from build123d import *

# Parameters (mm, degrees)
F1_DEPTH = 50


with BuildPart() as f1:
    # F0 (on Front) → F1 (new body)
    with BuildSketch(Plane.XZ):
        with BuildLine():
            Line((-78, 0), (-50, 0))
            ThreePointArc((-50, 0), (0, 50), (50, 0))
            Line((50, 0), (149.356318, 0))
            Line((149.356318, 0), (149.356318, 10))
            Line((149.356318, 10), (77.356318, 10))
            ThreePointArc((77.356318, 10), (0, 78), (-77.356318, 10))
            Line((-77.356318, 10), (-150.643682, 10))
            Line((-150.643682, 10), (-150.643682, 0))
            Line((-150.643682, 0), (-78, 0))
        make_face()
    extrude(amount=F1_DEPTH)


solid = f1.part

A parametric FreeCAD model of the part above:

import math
import FreeCAD as App
import Part
import Sketcher

doc = App.newDocument("Part")
body = doc.addObject("PartDesign::Body", "Body")

# Sketch on XZ plane
sketch1 = body.newObject("Sketcher::SketchObject", "Sketch")
sketch1.AttachmentSupport = (doc.getObject("XZ_Plane"), [""])
sketch1.MapMode = "FlatFace"
sketch1.addGeometry(Part.ArcOfCircle(Part.Circle(App.Vector(0, 0, 0), App.Vector(0, 0, 1), 50), math.radians(0), math.radians(180)), False)
sketch1.addGeometry(Part.LineSegment(App.Vector(50, 0, 0), App.Vector(149, 0, 0)), False)
sketch1.addGeometry(Part.LineSegment(App.Vector(149, 0, 0), App.Vector(149, 10, 0)), False)
sketch1.addGeometry(Part.LineSegment(App.Vector(149, 10, 0), App.Vector(77, 10, 0)), False)
sketch1.addGeometry(Part.ArcOfCircle(Part.Circle(App.Vector(0, 0, 0), App.Vector(0, 0, 1), 78), math.radians(7), math.radians(173)), False)
sketch1.addGeometry(Part.LineSegment(App.Vector(-77, 10, 0), App.Vector(-151, 10, 0)), False)
sketch1.addGeometry(Part.LineSegment(App.Vector(-151, 10, 0), App.Vector(-151, 0, 0)), False)
sketch1.addGeometry(Part.LineSegment(App.Vector(-151, 0, 0), App.Vector(-50, 0, 0)), False)
sketch1.addConstraint(Sketcher.Constraint("Coincident", 0, 1, 1, 1))
sketch1.addConstraint(Sketcher.Constraint("Coincident", 1, 2, 2, 1))
sketch1.addConstraint(Sketcher.Constraint("Coincident", 2, 2, 3, 1))
sketch1.addConstraint(Sketcher.Constraint("Coincident", 3, 2, 4, 1))
sketch1.addConstraint(Sketcher.Constraint("Coincident", 4, 2, 5, 1))
sketch1.addConstraint(Sketcher.Constraint("Coincident", 5, 2, 6, 1))
sketch1.addConstraint(Sketcher.Constraint("Coincident", 6, 2, 7, 1))
sketch1.addConstraint(Sketcher.Constraint("Coincident", 7, 2, 0, 2))
sketch1.addConstraint(Sketcher.Constraint("Horizontal", 1))
sketch1.addConstraint(Sketcher.Constraint("Vertical", 2))
sketch1.addConstraint(Sketcher.Constraint("Horizontal", 3))
sketch1.addConstraint(Sketcher.Constraint("Horizontal", 5))
sketch1.addConstraint(Sketcher.Constraint("Vertical", 6))
sketch1.addConstraint(Sketcher.Constraint("Horizontal", 7))
sketch1.addConstraint(Sketcher.Constraint("Coincident", 0, 3, -1, 1))
sketch1.addConstraint(Sketcher.Constraint("Coincident", 4, 3, -1, 1))
sketch1.addConstraint(Sketcher.Constraint("PointOnObject", 0, 1, -1))
sketch1.addConstraint(Sketcher.Constraint("PointOnObject", 6, 2, -1))
sketch1.addConstraint(Sketcher.Constraint("Horizontal", 3, 2, 4, 2))
sketch1.addConstraint(Sketcher.Constraint("Radius", 0, 50.0))
sketch1.addConstraint(Sketcher.Constraint("Radius", 4, 78.0))
sketch1.addConstraint(Sketcher.Constraint("DistanceX", 3, 2, 3, 1, 72.0))
sketch1.addConstraint(Sketcher.Constraint("DistanceY", 2, 1, 2, 2, 10.0))
sketch1.addConstraint(Sketcher.Constraint("DistanceX", 5, 2, 3, 2, 228.0))
pad1 = body.newObject("PartDesign::Pad", "Pad")
pad1.Profile = sketch1
pad1.Length = 50

doc.recompute()
